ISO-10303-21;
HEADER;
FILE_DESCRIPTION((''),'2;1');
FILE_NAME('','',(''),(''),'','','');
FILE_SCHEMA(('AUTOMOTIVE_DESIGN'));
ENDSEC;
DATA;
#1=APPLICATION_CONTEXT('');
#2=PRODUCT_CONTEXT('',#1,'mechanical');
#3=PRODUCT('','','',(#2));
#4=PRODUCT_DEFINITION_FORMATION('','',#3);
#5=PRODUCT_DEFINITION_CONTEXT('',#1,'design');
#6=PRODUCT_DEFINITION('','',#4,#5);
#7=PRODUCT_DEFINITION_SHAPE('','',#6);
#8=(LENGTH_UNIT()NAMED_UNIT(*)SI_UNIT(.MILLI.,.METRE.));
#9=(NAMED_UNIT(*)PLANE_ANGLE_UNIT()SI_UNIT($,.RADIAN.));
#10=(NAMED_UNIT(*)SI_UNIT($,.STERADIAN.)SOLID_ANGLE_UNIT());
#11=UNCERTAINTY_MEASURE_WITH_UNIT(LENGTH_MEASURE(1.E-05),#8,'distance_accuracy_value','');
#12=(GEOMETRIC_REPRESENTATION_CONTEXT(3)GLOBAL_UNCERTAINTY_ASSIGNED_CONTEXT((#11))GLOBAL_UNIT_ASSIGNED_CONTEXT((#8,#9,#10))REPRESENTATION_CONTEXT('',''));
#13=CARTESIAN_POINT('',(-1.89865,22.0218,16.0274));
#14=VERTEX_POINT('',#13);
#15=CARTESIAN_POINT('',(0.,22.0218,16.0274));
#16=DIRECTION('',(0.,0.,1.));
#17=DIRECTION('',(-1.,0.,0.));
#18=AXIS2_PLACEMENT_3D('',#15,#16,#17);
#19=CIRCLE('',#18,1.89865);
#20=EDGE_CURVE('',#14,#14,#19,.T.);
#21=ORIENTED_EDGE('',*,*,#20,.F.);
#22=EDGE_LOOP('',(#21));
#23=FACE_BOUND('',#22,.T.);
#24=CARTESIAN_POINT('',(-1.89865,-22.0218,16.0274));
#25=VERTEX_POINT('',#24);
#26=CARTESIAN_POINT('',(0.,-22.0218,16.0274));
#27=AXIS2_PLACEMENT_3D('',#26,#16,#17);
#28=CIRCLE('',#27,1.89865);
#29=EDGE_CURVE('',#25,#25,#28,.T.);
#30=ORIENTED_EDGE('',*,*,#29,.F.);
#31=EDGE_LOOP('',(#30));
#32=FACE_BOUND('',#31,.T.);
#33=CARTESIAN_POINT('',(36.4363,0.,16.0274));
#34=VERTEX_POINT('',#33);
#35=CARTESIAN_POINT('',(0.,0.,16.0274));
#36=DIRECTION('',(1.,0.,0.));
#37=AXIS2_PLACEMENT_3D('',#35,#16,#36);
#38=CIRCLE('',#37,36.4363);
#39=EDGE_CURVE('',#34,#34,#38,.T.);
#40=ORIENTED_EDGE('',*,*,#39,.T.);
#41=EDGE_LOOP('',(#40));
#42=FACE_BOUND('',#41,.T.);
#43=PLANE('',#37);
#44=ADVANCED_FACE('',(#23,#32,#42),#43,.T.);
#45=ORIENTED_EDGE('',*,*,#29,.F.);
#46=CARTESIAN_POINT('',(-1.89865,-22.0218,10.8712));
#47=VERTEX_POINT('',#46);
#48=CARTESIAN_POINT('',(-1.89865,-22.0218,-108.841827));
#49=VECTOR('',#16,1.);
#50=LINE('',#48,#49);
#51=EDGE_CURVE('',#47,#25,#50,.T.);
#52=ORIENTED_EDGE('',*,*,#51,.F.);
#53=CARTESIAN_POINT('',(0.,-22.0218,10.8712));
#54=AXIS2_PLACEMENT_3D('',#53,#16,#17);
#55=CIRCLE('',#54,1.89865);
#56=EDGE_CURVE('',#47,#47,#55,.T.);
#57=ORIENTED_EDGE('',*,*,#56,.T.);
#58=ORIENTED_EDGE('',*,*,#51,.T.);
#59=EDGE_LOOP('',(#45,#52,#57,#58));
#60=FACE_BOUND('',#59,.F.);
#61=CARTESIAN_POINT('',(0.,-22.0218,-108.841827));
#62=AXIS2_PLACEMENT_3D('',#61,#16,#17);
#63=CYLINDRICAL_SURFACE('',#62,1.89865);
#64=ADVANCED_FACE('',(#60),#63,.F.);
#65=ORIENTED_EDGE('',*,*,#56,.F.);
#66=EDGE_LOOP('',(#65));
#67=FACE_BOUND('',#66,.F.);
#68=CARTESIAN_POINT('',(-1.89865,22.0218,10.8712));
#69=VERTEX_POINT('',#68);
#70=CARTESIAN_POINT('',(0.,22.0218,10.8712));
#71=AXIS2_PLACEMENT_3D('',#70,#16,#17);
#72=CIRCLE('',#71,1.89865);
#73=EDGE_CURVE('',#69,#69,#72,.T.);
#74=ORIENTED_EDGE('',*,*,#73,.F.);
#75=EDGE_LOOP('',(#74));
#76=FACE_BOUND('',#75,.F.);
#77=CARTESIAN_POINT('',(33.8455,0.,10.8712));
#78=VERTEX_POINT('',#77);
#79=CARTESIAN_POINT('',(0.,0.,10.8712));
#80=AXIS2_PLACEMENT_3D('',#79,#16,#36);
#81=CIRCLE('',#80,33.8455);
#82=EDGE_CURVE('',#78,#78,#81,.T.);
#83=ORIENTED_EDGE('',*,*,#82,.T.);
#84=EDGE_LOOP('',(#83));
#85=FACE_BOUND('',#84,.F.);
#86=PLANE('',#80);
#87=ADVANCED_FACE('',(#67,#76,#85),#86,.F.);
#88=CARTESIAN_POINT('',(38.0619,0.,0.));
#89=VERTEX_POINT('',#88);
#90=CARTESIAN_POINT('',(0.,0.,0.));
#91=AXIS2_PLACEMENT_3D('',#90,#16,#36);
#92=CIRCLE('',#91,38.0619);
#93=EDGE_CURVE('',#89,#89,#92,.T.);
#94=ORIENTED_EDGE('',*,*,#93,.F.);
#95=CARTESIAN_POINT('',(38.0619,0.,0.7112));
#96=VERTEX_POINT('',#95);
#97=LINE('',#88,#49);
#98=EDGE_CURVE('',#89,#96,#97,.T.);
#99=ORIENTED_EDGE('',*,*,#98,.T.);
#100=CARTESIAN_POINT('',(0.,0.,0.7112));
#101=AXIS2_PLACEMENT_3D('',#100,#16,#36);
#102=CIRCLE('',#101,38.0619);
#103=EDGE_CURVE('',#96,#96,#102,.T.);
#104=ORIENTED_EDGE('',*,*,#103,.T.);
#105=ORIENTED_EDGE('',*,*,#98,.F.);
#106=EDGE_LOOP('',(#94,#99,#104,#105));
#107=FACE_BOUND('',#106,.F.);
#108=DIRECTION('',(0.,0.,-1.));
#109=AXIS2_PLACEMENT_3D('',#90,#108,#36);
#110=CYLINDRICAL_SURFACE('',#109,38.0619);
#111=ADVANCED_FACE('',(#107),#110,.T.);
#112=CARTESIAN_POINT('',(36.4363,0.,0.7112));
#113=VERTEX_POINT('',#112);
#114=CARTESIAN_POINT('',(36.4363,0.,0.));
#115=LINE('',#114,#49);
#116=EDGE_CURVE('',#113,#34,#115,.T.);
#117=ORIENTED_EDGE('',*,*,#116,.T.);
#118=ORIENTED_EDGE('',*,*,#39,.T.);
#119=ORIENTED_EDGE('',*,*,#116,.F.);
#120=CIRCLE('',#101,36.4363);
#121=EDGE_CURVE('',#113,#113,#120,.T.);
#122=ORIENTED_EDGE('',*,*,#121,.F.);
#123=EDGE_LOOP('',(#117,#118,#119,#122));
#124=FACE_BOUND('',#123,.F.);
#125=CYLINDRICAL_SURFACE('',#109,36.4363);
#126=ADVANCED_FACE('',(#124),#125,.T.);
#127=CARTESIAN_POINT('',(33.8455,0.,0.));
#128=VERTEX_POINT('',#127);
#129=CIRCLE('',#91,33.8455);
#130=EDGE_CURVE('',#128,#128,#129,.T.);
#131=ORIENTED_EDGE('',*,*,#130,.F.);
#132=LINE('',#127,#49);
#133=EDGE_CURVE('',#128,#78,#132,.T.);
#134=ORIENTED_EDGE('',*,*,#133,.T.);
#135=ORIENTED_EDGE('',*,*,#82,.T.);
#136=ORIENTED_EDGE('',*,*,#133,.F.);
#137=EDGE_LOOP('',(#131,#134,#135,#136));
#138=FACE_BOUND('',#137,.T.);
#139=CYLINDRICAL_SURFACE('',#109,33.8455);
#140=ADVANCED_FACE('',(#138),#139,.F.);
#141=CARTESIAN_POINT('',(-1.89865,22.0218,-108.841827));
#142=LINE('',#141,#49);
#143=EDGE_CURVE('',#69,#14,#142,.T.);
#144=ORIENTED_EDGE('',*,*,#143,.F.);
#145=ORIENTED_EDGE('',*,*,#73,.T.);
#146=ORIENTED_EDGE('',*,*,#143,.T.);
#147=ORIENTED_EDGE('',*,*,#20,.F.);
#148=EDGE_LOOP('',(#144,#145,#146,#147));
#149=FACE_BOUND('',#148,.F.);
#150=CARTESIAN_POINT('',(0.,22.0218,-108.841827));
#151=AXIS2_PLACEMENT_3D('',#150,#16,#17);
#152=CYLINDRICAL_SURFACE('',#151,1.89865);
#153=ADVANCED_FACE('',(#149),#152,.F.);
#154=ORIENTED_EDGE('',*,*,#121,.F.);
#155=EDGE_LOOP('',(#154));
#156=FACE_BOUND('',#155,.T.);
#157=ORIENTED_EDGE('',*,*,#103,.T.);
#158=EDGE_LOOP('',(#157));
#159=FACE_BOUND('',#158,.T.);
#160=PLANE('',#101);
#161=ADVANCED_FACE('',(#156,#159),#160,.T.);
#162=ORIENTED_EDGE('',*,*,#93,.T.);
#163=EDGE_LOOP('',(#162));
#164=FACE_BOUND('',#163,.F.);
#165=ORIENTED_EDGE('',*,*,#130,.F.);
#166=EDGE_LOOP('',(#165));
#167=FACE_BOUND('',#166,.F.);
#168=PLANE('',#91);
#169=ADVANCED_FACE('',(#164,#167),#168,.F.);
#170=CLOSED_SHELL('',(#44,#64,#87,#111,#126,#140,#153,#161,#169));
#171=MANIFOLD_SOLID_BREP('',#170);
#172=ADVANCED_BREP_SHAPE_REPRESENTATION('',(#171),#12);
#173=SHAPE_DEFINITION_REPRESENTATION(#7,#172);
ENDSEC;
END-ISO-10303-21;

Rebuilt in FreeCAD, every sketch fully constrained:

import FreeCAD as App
import Part
import Sketcher
Q = App.Units.Quantity

doc = App.newDocument("Part")
body = doc.addObject("PartDesign::Body", "Body")

sketch1 = doc.addObject("Sketcher::SketchObject", "Sketch")
body.addObject(sketch1)
sketch1.AttachmentSupport = (doc.XY_Plane, [""])
sketch1.MapMode = "FlatFace"
sketch1.addGeometry(Part.Circle(App.Vector(0, 0, 0), App.Vector(0, 0, 1), 38), False)
sketch1.addGeometry(Part.Circle(App.Vector(0, 0, 0), App.Vector(0, 0, 1), 36), False)
sketch1.addConstraint(Sketcher.Constraint("Coincident", 0, 3, -1, 1))
sketch1.addConstraint(Sketcher.Constraint("Coincident", 1, 3, -1, 1))
sketch1.addConstraint(Sketcher.Constraint("Diameter", 0, Q("2.997 in")))
sketch1.addConstraint(Sketcher.Constraint("Diameter", 1, Q("2.869 in")))
pad1 = doc.addObject("PartDesign::Pad", "Pad")
body.addObject(pad1)
pad1.Profile = sketch1
pad1.Length = Q("0.028 in")

sketch2 = doc.addObject("Sketcher::SketchObject", "Sketch001")
body.addObject(sketch2)
sketch2.AttachmentSupport = (doc.XY_Plane, [""])
sketch2.MapMode = "FlatFace"
sketch2.addGeometry(Part.Circle(App.Vector(0, 0, 0), App.Vector(0, 0, 1), 36), False)
sketch2.addConstraint(Sketcher.Constraint("Coincident", 0, 3, -1, 1))
sketch2.addConstraint(Sketcher.Constraint("Diameter", 0, Q("2.869 in")))
pad2 = doc.addObject("PartDesign::Pad", "Pad001")
body.addObject(pad2)
pad2.Profile = sketch2
pad2.Length = Q("0.631 in")

sketch3 = doc.addObject("Sketcher::SketchObject", "Sketch002")
body.addObject(sketch3)
sketch3.AttachmentSupport = (doc.XY_Plane, [""])
sketch3.MapMode = "FlatFace"
sketch3.addGeometry(Part.Circle(App.Vector(0, 0, 0), App.Vector(0, 0, 1), 34), False)
sketch3.addConstraint(Sketcher.Constraint("Coincident", 0, 3, -1, 1))
sketch3.addConstraint(Sketcher.Constraint("Diameter", 0, Q("2.665 in")))
pocket1 = doc.addObject("PartDesign::Pocket", "Pocket")
body.addObject(pocket1)
pocket1.Profile = sketch3
pocket1.Length = Q("0.428 in")
pocket1.Reversed = True

sketch4 = doc.addObject("Sketcher::SketchObject", "Sketch003")
body.addObject(sketch4)
sketch4.AttachmentSupport = (doc.XY_Plane, [""])
sketch4.MapMode = "FlatFace"
sketch4.addGeometry(Part.Circle(App.Vector(0, -22, 0), App.Vector(0, 0, 1), 1.9), False)
sketch4.addGeometry(Part.Circle(App.Vector(0, 22, 0), App.Vector(0, 0, 1), 1.9), False)
sketch4.addConstraint(Sketcher.Constraint("Equal", 0, 1))
sketch4.addConstraint(Sketcher.Constraint("Symmetric", 0, 3, 1, 3, -1, 1))
sketch4.addConstraint(Sketcher.Constraint("PointOnObject", 0, 3, -2))
sketch4.addConstraint(Sketcher.Constraint("Diameter", 0, Q("0.1495 in")))
sketch4.addConstraint(Sketcher.Constraint("DistanceY", 0, 3, -1, 1, Q("0.867 in")))
doc.recompute()
hole = doc.addObject("PartDesign::Hole", "Hole")
body.addObject(hole)
hole.Profile = sketch4
hole.ThreadType = "None"
hole.Diameter = Q("0.1495 in")
hole.DepthType = "ThroughAll"
hole.Reversed = True

doc.recompute()
